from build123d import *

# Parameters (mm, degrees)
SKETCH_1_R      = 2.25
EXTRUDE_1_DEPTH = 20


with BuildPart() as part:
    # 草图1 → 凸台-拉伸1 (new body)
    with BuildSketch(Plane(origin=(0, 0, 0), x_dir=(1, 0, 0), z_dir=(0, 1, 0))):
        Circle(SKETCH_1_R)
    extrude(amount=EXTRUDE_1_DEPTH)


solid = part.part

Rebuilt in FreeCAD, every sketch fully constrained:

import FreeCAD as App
import Part
import Sketcher
from FreeCAD import Vector

doc = App.newDocument("Part")
params = doc.addObject("Spreadsheet::Sheet", "Params")
for row, (alias, value) in enumerate([
    ("sketch1_diameter", "4.5 mm"),
    ("pad1_length", "20 mm"),
], start=1):
    params.set(f"A{row}", alias)
    params.set(f"B{row}", "=" + value)
    params.setAlias(f"B{row}", alias)

body = doc.addObject("PartDesign::Body", "Body")

# Sketch on XZ plane
sketch1 = body.newObject("Sketcher::SketchObject", "Sketch")
sketch1.AttachmentSupport = (doc.getObject("XZ_Plane"), [""])
sketch1.MapMode = "FlatFace"
sketch1.addGeometry(Part.Circle(Vector(0, 0, 0), Vector(0, 0, 1), 2.2), False)
sketch1.addConstraint(Sketcher.Constraint("Coincident", 0, 3, -1, 1))
sketch1.addConstraint(Sketcher.Constraint("Diameter", 0, 4.5))
sketch1.setExpression("Constraints[1]", "Params.sketch1_diameter")
pad1 = body.newObject("PartDesign::Pad", "Pad")
pad1.Profile = sketch1
pad1.setExpression("Length", "Params.pad1_length")
pad1.Reversed = True

doc.recompute()
